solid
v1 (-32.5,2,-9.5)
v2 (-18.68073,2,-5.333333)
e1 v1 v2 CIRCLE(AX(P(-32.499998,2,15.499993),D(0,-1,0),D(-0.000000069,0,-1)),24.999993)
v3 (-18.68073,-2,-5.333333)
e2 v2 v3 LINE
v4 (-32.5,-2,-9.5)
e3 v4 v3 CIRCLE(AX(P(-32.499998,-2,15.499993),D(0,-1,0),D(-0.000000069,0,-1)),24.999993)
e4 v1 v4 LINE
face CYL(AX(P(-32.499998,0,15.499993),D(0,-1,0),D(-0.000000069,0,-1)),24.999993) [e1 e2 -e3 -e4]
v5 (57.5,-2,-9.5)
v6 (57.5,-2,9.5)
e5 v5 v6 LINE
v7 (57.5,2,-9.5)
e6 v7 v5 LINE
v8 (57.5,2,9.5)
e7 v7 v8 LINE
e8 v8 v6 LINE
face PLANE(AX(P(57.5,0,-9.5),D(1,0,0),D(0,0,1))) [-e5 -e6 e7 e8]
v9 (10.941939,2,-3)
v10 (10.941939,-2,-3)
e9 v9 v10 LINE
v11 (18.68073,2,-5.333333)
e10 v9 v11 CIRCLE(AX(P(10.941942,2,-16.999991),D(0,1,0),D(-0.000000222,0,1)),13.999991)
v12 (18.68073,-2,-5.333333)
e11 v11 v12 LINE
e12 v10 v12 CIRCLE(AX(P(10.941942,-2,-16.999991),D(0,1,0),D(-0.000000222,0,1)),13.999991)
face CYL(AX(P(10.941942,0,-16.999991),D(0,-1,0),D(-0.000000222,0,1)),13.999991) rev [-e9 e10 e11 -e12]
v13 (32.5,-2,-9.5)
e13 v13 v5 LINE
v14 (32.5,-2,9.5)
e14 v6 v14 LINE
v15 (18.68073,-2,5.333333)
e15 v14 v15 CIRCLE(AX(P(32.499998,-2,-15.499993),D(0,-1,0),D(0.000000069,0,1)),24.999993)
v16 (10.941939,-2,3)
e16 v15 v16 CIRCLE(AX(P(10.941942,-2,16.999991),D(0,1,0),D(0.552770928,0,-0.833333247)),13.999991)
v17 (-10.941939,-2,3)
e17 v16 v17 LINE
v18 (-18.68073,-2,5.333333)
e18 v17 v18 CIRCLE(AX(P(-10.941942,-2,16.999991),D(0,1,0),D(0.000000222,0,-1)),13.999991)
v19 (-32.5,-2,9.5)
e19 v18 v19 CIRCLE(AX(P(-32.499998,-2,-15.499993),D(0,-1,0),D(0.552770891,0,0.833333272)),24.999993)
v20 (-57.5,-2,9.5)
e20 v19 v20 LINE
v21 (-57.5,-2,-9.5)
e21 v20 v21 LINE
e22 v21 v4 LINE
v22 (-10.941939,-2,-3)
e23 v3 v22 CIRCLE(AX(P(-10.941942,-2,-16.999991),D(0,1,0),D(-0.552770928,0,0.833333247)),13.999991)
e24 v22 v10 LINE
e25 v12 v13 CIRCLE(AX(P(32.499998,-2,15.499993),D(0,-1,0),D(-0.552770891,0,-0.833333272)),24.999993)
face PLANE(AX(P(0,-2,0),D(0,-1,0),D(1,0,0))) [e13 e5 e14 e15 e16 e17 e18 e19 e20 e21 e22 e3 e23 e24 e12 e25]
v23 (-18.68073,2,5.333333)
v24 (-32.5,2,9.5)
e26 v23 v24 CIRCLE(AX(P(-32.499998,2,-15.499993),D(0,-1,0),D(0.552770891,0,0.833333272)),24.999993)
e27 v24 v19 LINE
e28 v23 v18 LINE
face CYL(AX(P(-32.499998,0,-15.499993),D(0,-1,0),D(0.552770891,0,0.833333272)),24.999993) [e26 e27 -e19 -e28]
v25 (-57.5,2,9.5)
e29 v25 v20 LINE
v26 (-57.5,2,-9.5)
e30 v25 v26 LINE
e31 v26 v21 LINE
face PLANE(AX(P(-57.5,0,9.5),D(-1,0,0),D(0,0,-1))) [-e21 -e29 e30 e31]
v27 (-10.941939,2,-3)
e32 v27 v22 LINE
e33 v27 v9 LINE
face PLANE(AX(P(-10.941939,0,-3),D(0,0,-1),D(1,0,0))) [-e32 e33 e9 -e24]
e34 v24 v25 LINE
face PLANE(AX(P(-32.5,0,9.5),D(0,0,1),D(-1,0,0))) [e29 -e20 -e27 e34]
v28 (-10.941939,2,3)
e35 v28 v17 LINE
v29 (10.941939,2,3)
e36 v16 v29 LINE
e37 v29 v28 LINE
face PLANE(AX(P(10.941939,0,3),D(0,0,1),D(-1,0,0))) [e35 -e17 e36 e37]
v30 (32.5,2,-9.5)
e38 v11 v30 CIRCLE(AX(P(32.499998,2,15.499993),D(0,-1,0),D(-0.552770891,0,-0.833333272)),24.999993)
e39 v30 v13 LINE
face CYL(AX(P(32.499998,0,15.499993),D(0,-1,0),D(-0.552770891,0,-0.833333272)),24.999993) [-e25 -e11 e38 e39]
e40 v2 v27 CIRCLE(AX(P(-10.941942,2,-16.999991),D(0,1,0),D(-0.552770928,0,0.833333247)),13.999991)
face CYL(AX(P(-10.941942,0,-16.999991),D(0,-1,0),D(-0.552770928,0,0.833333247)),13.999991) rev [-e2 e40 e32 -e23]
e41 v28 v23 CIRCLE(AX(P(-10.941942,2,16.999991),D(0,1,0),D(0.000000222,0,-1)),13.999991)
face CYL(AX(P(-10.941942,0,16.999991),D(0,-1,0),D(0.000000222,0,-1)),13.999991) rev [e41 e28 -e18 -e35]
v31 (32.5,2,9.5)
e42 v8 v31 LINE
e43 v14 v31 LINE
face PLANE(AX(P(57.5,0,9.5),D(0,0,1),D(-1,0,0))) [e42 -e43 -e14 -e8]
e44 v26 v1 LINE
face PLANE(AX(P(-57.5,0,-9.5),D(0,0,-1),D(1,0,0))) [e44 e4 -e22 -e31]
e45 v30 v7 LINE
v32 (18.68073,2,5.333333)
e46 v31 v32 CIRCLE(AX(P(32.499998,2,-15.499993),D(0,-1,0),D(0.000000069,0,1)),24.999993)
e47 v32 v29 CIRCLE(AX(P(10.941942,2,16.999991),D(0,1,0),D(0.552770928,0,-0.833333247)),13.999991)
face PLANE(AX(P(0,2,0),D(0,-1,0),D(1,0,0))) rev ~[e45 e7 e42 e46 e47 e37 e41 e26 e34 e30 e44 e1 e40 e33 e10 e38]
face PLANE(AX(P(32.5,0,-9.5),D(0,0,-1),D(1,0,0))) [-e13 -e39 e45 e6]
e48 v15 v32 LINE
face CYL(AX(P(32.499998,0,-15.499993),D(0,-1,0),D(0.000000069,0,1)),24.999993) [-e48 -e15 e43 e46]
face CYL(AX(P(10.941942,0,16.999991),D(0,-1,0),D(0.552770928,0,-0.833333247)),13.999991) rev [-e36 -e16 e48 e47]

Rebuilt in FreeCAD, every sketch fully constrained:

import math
import FreeCAD as App
import Part
import Sketcher

doc = App.newDocument("Part")
body = doc.addObject("PartDesign::Body", "Body")

sketch1 = doc.addObject("Sketcher::SketchObject", "Sketch")
body.addObject(sketch1)
sketch1.AttachmentSupport = (doc.XZ_Plane, [""])
sketch1.MapMode = "FlatFace"
sketch1.addGeometry(Part.LineSegment(App.Vector(11, 3, 0), App.Vector(-11, 3, 0)), False)
sketch1.addGeometry(Part.ArcOfCircle(Part.Circle(App.Vector(-11, 17, 0), App.Vector(0, 0, 1), 14), math.radians(-124), math.radians(-90)), False)
sketch1.addGeometry(Part.ArcOfCircle(Part.Circle(App.Vector(-32, -15, 0), App.Vector(0, 0, 1), 25), math.radians(56), math.radians(90)), False)
sketch1.addGeometry(Part.LineSegment(App.Vector(-32, 10, 0), App.Vector(-58, 10, 0)), False)
sketch1.addGeometry(Part.LineSegment(App.Vector(-58, 10, 0), App.Vector(-58, -10, 0)), False)
sketch1.addGeometry(Part.LineSegment(App.Vector(-58, -10, 0), App.Vector(-32, -10, 0)), False)
sketch1.addGeometry(Part.ArcOfCircle(Part.Circle(App.Vector(-32, 15, 0), App.Vector(0, 0, 1), 25), math.radians(-90), math.radians(-56)), False)
sketch1.addGeometry(Part.ArcOfCircle(Part.Circle(App.Vector(-11, -17, 0), App.Vector(0, 0, 1), 14), math.radians(90), math.radians(124)), False)
sketch1.addGeometry(Part.LineSegment(App.Vector(-11, -3, 0), App.Vector(11, -3, 0)), False)
sketch1.addGeometry(Part.ArcOfCircle(Part.Circle(App.Vector(11, -17, 0), App.Vector(0, 0, 1), 14), math.radians(56), math.radians(90)), False)
sketch1.addGeometry(Part.ArcOfCircle(Part.Circle(App.Vector(32, 15, 0), App.Vector(0, 0, 1), 25), math.radians(-124), math.radians(-90)), False)
sketch1.addGeometry(Part.LineSegment(App.Vector(32, -10, 0), App.Vector(58, -10, 0)), False)
sketch1.addGeometry(Part.LineSegment(App.Vector(58, -10, 0), App.Vector(58, 10, 0)), False)
sketch1.addGeometry(Part.LineSegment(App.Vector(58, 10, 0), App.Vector(32, 10, 0)), False)
sketch1.addGeometry(Part.ArcOfCircle(Part.Circle(App.Vector(32, -15, 0), App.Vector(0, 0, 1), 25), math.radians(90), math.radians(124)), False)
sketch1.addGeometry(Part.ArcOfCircle(Part.Circle(App.Vector(11, 17, 0), App.Vector(0, 0, 1), 14), math.radians(-90), math.radians(-56)), False)
sketch1.addConstraint(Sketcher.Constraint("Tangent", 0, 2, 1, 2))
sketch1.addConstraint(Sketcher.Constraint("Tangent", 1, 1, 2, 1))
sketch1.addConstraint(Sketcher.Constraint("Tangent", 2, 2, 3, 1))
sketch1.addConstraint(Sketcher.Constraint("Coincident", 3, 2, 4, 1))
sketch1.addConstraint(Sketcher.Constraint("Coincident", 4, 2, 5, 1))
sketch1.addConstraint(Sketcher.Constraint("Tangent", 5, 2, 6, 1))
sketch1.addConstraint(Sketcher.Constraint("Tangent", 6, 2, 7, 2))
sketch1.addConstraint(Sketcher.Constraint("Tangent", 7, 1, 8, 1))
sketch1.addConstraint(Sketcher.Constraint("Tangent", 8, 2, 9, 2))
sketch1.addConstraint(Sketcher.Constraint("Tangent", 9, 1, 10, 1))
sketch1.addConstraint(Sketcher.Constraint("Tangent", 10, 2, 11, 1))
sketch1.addConstraint(Sketcher.Constraint("Coincident", 11, 2, 12, 1))
sketch1.addConstraint(Sketcher.Constraint("Coincident", 12, 2, 13, 1))
sketch1.addConstraint(Sketcher.Constraint("Tangent", 13, 2, 14, 1))
sketch1.addConstraint(Sketcher.Constraint("Tangent", 14, 2, 15, 2))
sketch1.addConstraint(Sketcher.Constraint("Tangent", 15, 1, 0, 1))
sketch1.addConstraint(Sketcher.Constraint("Horizontal", 0))
sketch1.addConstraint(Sketcher.Constraint("Horizontal", 3))
sketch1.addConstraint(Sketcher.Constraint("Vertical", 4))
sketch1.addConstraint(Sketcher.Constraint("Horizontal", 5))
sketch1.addConstraint(Sketcher.Constraint("Horizontal", 8))
sketch1.addConstraint(Sketcher.Constraint("Horizontal", 11))
sketch1.addConstraint(Sketcher.Constraint("Vertical", 12))
sketch1.addConstraint(Sketcher.Constraint("Horizontal", 13))
sketch1.addConstraint(Sketcher.Constraint("Equal", 2, 6))
sketch1.addConstraint(Sketcher.Constraint("Equal", 1, 7))
sketch1.addConstraint(Sketcher.Constraint("Equal", 7, 9))
sketch1.addConstraint(Sketcher.Constraint("Equal", 6, 10))
sketch1.addConstraint(Sketcher.Constraint("Equal", 10, 14))
sketch1.addConstraint(Sketcher.Constraint("Equal", 9, 15))
sketch1.addConstraint(Sketcher.Constraint("Symmetric", 1, 3, 9, 3, -1, 1))
sketch1.addConstraint(Sketcher.Constraint("Symmetric", 6, 3, 14, 3, -1, 1))
sketch1.addConstraint(Sketcher.Constraint("Symmetric", 3, 2, 11, 2, -1, 1))
sketch1.addConstraint(Sketcher.Constraint("Symmetric", 6, 3, 10, 3, -2))
sketch1.addConstraint(Sketcher.Constraint("DistanceX", 3, 2, 3, 1, 25.0))
sketch1.addConstraint(Sketcher.Constraint("DistanceY", 4, 2, 4, 1, 19.0))
sketch1.addConstraint(Sketcher.Constraint("DistanceY", -1, 1, 0, 2, 3.0))
sketch1.addConstraint(Sketcher.Constraint("DistanceX", 2, 3, -1, 1, 32.499998))
sketch1.addConstraint(Sketcher.Constraint("DistanceY", 6, 3, 1, 3, 1.499998))
sketch1.addConstraint(Sketcher.Constraint("Radius", 1, 13.999991))
pad1 = doc.addObject("PartDesign::Pad", "Pad")
body.addObject(pad1)
pad1.Profile = sketch1
pad1.Length = 4
pad1.Midplane = True

doc.recompute()
